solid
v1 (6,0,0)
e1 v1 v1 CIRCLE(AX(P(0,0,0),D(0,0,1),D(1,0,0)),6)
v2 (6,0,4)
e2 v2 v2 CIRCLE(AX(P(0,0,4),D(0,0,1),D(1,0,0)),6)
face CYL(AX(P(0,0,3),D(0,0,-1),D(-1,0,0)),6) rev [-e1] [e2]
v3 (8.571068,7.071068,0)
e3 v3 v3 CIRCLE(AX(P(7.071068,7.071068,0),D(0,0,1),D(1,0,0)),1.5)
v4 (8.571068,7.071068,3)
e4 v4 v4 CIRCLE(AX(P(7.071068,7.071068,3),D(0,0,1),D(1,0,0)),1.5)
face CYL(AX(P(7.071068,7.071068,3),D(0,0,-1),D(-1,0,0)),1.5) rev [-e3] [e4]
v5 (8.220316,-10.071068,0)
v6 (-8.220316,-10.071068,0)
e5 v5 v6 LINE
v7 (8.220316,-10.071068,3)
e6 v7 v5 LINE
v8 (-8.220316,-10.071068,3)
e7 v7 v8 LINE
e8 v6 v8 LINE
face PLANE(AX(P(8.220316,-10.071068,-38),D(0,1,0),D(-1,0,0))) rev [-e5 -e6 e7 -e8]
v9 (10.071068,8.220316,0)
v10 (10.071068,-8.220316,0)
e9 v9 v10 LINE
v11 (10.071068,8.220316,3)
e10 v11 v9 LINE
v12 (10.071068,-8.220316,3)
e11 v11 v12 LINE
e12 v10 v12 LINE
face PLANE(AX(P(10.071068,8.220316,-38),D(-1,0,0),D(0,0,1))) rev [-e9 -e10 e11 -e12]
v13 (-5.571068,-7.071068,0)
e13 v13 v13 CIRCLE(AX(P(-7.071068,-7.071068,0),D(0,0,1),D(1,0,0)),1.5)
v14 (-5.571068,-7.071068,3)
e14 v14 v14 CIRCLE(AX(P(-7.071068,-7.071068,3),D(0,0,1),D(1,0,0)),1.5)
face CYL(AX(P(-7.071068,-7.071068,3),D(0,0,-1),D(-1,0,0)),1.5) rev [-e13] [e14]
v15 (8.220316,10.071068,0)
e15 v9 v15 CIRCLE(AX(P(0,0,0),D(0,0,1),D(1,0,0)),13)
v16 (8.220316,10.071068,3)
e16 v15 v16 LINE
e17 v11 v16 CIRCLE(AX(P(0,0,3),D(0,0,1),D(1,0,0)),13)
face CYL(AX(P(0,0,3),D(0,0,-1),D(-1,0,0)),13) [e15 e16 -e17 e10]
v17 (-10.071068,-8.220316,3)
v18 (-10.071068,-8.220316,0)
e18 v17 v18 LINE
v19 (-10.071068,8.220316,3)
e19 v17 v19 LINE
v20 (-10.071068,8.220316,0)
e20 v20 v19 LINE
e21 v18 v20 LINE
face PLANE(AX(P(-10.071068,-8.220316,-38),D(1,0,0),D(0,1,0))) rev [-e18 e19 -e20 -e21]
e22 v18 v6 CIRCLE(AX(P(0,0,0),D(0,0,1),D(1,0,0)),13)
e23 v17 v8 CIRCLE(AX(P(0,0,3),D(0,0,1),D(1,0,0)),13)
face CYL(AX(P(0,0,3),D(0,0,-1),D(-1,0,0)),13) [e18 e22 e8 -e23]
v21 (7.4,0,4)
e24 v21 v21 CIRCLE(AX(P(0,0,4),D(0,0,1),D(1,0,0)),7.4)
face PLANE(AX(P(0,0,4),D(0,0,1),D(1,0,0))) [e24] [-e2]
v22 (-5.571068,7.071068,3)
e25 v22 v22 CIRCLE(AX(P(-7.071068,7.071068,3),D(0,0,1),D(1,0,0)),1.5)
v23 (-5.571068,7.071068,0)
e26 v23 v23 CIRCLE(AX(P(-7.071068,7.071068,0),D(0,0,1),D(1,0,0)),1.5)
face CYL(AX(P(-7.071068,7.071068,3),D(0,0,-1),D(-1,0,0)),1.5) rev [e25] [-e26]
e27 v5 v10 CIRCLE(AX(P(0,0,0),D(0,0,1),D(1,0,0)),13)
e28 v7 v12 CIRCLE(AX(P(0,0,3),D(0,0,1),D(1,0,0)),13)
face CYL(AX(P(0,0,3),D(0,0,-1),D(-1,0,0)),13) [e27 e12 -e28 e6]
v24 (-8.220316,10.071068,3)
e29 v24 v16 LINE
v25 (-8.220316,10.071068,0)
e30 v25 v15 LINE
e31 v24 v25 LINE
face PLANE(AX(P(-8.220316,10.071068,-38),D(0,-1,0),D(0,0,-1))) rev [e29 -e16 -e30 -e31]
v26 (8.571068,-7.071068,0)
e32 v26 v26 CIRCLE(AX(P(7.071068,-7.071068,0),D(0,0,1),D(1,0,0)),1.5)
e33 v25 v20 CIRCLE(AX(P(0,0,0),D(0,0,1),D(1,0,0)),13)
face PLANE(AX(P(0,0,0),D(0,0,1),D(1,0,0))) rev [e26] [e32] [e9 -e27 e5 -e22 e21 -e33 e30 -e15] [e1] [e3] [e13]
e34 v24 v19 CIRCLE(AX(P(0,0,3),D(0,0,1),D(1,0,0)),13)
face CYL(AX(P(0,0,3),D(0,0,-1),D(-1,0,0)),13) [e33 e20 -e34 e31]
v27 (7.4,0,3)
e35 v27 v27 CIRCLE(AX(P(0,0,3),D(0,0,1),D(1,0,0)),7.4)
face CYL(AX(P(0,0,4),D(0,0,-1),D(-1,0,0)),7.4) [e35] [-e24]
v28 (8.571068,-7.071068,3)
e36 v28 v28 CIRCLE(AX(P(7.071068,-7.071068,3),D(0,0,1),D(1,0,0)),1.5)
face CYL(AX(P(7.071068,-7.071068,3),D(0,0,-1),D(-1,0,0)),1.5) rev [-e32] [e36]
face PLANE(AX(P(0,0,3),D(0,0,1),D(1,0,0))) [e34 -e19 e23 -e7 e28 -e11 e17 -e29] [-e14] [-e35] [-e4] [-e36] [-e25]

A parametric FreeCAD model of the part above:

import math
import FreeCAD as App
import Part
import Sketcher

doc = App.newDocument("Part")
params = doc.addObject("Spreadsheet::Sheet", "Params")
for row, (alias, value) in enumerate([
    ("sketch1_diameter", "26 mm"),
    ("sketch1_diameter2", "3 mm"),
    ("sketch1_diameter3", "12 mm"),
    ("pad1_length", "3 mm"),
    ("sketch2_diameter", "12 mm"),
    ("sketch2_diameter2", "14.8 mm"),
    ("pad2_length", "1 mm"),
    ("sketch3_radius", "13 mm"),
    ("pocket1_length", "41 mm"),
], start=1):
    params.set(f"A{row}", alias)
    params.set(f"B{row}", "=" + value)
    params.setAlias(f"B{row}", alias)

body = doc.addObject("PartDesign::Body", "Body")

# Sketch on XY plane
sketch1 = body.newObject("Sketcher::SketchObject", "Sketch")
sketch1.AttachmentSupport = (doc.getObject("XY_Plane"), [""])
sketch1.MapMode = "FlatFace"
sketch1.addGeometry([
    Part.Circle(App.Vector(0, 0, 0), App.Vector(0, 0, 1), 13),  # 0
    Part.Circle(App.Vector(-7.1, -7.1, 0), App.Vector(0, 0, 1), 1.5),  # 1
    Part.Circle(App.Vector(7.1, -7.1, 0), App.Vector(0, 0, 1), 1.5),  # 2
    Part.Circle(App.Vector(-7.1, 7.1, 0), App.Vector(0, 0, 1), 1.5),  # 3
    Part.Circle(App.Vector(0, 0, 0), App.Vector(0, 0, 1), 6),  # 4
    Part.Circle(App.Vector(7.1, 7.1, 0), App.Vector(0, 0, 1), 1.5),  # 5
], False)
sketch1.addConstraint([
    Sketcher.Constraint("Coincident", 0, 3, -1, 1),
    Sketcher.Constraint("Coincident", 4, 3, -1, 1),
    Sketcher.Constraint("Equal", 1, 2),
    Sketcher.Constraint("Equal", 2, 3),
    Sketcher.Constraint("Equal", 3, 5),
    Sketcher.Constraint("Symmetric", 2, 3, 3, 3, -1, 1),
    Sketcher.Constraint("Symmetric", 1, 3, 5, 3, -1, 1),
    Sketcher.Constraint("Symmetric", 1, 3, 2, 3, -2),
    Sketcher.Constraint("Diameter", 0, 26.0),
    Sketcher.Constraint("Diameter", 1, 3.0),
    Sketcher.Constraint("Diameter", 4, 12.0),
    Sketcher.Constraint("DistanceX", 1, 3, -1, 1, 7.071068),
    Sketcher.Constraint("DistanceY", 1, 3, -1, 1, 7.071068),
])
sketch1.setExpression("Constraints[8]", "Params.sketch1_diameter")
sketch1.setExpression("Constraints[9]", "Params.sketch1_diameter2")
sketch1.setExpression("Constraints[10]", "Params.sketch1_diameter3")
pad1 = body.newObject("PartDesign::Pad", "Pad")
pad1.Profile = sketch1
pad1.setExpression("Length", "Params.pad1_length")

# Sketch on XY plane
sketch2 = body.newObject("Sketcher::SketchObject", "Sketch001")
sketch2.AttachmentSupport = (doc.getObject("XY_Plane"), [""])
sketch2.MapMode = "FlatFace"
sketch2.AttachmentOffset = App.Placement(App.Vector(0, 0, 3), App.Rotation())
sketch2.addGeometry([
    Part.Circle(App.Vector(0, 0, 0), App.Vector(0, 0, 1), 7),
    Part.Circle(App.Vector(0, 0, 0), App.Vector(0, 0, 1), 6),
], False)
sketch2.addConstraint([
    Sketcher.Constraint("Coincident", 0, 3, -1, 1),
    Sketcher.Constraint("Coincident", 1, 3, -1, 1),
    Sketcher.Constraint("Diameter", 1, 12.0),
    Sketcher.Constraint("Diameter", 0, 14.8),
])
sketch2.setExpression("Constraints[2]", "Params.sketch2_diameter")
sketch2.setExpression("Constraints[3]", "Params.sketch2_diameter2")
pad2 = body.newObject("PartDesign::Pad", "Pad001")
pad2.Profile = sketch2
pad2.setExpression("Length", "Params.pad2_length")

# Sketch on XY plane
sketch3 = body.newObject("Sketcher::SketchObject", "Sketch002")
sketch3.AttachmentSupport = (doc.getObject("XY_Plane"), [""])
sketch3.MapMode = "FlatFace"
sketch3.AttachmentOffset = App.Placement(App.Vector(0, 0, -38), App.Rotation())
sketch3.addGeometry([
    Part.LineSegment(App.Vector(-8, 10, 0), App.Vector(8, 10, 0)),  # 0
    Part.ArcOfCircle(Part.Circle(App.Vector(0, 0, 0), App.Vector(0, 0, 1), 13), math.radians(51), math.radians(129)),  # 1
    Part.LineSegment(App.Vector(10, 8, 0), App.Vector(10, -8, 0)),  # 2
    Part.ArcOfCircle(Part.Circle(App.Vector(0, 0, 0), App.Vector(0, 0, 1), 13), math.radians(-39), math.radians(39)),  # 3
    Part.LineSegment(App.Vector(8, -10, 0), App.Vector(-8, -10, 0)),  # 4
    Part.ArcOfCircle(Part.Circle(App.Vector(0, 0, 0), App.Vector(0, 0, 1), 13), math.radians(-129), math.radians(-51)),  # 5
    Part.LineSegment(App.Vector(-10, -8, 0), App.Vector(-10, 8, 0)),  # 6
    Part.ArcOfCircle(Part.Circle(App.Vector(0, 0, 0), App.Vector(0, 0, 1), 13), math.radians(141), math.radians(219)),  # 7
], False)
sketch3.addConstraint([
    Sketcher.Constraint("Coincident", 0, 1, 1, 2),
    Sketcher.Constraint("Coincident", 1, 1, 0, 2),
    Sketcher.Constraint("Coincident", 2, 1, 3, 2),
    Sketcher.Constraint("Coincident", 3, 1, 2, 2),
    Sketcher.Constraint("Coincident", 4, 1, 5, 2),
    Sketcher.Constraint("Coincident", 5, 1, 4, 2),
    Sketcher.Constraint("Coincident", 6, 1, 7, 2),
    Sketcher.Constraint("Coincident", 7, 1, 6, 2),
    Sketcher.Constraint("Horizontal", 0),
    Sketcher.Constraint("Vertical", 2),
    Sketcher.Constraint("Horizontal", 4),
    Sketcher.Constraint("Vertical", 6),
    Sketcher.Constraint("Coincident", 1, 3, -1, 1),
    Sketcher.Constraint("Coincident", 3, 3, -1, 1),
    Sketcher.Constraint("Coincident", 5, 3, -1, 1),
    Sketcher.Constraint("Coincident", 7, 3, -1, 1),
    Sketcher.Constraint("Equal", 1, 3),
    Sketcher.Constraint("Equal", 3, 5),
    Sketcher.Constraint("Equal", 5, 7),
    Sketcher.Constraint("Horizontal", 3, 1, 6, 1),
    Sketcher.Constraint("Vertical", 1, 1, 4, 1),
    Sketcher.Constraint("Equal", 4, 2),
    Sketcher.Constraint("Radius", 1, 13.0),
    Sketcher.Constraint("DistanceX", 0, 1, 0, 2, 16.440632),
])
sketch3.setExpression("Constraints[22]", "Params.sketch3_radius")
pocket1 = body.newObject("PartDesign::Pocket", "Pocket")
pocket1.Profile = sketch3
pocket1.setExpression("Length", "Params.pocket1_length")
pocket1.Reversed = True

doc.recompute()
